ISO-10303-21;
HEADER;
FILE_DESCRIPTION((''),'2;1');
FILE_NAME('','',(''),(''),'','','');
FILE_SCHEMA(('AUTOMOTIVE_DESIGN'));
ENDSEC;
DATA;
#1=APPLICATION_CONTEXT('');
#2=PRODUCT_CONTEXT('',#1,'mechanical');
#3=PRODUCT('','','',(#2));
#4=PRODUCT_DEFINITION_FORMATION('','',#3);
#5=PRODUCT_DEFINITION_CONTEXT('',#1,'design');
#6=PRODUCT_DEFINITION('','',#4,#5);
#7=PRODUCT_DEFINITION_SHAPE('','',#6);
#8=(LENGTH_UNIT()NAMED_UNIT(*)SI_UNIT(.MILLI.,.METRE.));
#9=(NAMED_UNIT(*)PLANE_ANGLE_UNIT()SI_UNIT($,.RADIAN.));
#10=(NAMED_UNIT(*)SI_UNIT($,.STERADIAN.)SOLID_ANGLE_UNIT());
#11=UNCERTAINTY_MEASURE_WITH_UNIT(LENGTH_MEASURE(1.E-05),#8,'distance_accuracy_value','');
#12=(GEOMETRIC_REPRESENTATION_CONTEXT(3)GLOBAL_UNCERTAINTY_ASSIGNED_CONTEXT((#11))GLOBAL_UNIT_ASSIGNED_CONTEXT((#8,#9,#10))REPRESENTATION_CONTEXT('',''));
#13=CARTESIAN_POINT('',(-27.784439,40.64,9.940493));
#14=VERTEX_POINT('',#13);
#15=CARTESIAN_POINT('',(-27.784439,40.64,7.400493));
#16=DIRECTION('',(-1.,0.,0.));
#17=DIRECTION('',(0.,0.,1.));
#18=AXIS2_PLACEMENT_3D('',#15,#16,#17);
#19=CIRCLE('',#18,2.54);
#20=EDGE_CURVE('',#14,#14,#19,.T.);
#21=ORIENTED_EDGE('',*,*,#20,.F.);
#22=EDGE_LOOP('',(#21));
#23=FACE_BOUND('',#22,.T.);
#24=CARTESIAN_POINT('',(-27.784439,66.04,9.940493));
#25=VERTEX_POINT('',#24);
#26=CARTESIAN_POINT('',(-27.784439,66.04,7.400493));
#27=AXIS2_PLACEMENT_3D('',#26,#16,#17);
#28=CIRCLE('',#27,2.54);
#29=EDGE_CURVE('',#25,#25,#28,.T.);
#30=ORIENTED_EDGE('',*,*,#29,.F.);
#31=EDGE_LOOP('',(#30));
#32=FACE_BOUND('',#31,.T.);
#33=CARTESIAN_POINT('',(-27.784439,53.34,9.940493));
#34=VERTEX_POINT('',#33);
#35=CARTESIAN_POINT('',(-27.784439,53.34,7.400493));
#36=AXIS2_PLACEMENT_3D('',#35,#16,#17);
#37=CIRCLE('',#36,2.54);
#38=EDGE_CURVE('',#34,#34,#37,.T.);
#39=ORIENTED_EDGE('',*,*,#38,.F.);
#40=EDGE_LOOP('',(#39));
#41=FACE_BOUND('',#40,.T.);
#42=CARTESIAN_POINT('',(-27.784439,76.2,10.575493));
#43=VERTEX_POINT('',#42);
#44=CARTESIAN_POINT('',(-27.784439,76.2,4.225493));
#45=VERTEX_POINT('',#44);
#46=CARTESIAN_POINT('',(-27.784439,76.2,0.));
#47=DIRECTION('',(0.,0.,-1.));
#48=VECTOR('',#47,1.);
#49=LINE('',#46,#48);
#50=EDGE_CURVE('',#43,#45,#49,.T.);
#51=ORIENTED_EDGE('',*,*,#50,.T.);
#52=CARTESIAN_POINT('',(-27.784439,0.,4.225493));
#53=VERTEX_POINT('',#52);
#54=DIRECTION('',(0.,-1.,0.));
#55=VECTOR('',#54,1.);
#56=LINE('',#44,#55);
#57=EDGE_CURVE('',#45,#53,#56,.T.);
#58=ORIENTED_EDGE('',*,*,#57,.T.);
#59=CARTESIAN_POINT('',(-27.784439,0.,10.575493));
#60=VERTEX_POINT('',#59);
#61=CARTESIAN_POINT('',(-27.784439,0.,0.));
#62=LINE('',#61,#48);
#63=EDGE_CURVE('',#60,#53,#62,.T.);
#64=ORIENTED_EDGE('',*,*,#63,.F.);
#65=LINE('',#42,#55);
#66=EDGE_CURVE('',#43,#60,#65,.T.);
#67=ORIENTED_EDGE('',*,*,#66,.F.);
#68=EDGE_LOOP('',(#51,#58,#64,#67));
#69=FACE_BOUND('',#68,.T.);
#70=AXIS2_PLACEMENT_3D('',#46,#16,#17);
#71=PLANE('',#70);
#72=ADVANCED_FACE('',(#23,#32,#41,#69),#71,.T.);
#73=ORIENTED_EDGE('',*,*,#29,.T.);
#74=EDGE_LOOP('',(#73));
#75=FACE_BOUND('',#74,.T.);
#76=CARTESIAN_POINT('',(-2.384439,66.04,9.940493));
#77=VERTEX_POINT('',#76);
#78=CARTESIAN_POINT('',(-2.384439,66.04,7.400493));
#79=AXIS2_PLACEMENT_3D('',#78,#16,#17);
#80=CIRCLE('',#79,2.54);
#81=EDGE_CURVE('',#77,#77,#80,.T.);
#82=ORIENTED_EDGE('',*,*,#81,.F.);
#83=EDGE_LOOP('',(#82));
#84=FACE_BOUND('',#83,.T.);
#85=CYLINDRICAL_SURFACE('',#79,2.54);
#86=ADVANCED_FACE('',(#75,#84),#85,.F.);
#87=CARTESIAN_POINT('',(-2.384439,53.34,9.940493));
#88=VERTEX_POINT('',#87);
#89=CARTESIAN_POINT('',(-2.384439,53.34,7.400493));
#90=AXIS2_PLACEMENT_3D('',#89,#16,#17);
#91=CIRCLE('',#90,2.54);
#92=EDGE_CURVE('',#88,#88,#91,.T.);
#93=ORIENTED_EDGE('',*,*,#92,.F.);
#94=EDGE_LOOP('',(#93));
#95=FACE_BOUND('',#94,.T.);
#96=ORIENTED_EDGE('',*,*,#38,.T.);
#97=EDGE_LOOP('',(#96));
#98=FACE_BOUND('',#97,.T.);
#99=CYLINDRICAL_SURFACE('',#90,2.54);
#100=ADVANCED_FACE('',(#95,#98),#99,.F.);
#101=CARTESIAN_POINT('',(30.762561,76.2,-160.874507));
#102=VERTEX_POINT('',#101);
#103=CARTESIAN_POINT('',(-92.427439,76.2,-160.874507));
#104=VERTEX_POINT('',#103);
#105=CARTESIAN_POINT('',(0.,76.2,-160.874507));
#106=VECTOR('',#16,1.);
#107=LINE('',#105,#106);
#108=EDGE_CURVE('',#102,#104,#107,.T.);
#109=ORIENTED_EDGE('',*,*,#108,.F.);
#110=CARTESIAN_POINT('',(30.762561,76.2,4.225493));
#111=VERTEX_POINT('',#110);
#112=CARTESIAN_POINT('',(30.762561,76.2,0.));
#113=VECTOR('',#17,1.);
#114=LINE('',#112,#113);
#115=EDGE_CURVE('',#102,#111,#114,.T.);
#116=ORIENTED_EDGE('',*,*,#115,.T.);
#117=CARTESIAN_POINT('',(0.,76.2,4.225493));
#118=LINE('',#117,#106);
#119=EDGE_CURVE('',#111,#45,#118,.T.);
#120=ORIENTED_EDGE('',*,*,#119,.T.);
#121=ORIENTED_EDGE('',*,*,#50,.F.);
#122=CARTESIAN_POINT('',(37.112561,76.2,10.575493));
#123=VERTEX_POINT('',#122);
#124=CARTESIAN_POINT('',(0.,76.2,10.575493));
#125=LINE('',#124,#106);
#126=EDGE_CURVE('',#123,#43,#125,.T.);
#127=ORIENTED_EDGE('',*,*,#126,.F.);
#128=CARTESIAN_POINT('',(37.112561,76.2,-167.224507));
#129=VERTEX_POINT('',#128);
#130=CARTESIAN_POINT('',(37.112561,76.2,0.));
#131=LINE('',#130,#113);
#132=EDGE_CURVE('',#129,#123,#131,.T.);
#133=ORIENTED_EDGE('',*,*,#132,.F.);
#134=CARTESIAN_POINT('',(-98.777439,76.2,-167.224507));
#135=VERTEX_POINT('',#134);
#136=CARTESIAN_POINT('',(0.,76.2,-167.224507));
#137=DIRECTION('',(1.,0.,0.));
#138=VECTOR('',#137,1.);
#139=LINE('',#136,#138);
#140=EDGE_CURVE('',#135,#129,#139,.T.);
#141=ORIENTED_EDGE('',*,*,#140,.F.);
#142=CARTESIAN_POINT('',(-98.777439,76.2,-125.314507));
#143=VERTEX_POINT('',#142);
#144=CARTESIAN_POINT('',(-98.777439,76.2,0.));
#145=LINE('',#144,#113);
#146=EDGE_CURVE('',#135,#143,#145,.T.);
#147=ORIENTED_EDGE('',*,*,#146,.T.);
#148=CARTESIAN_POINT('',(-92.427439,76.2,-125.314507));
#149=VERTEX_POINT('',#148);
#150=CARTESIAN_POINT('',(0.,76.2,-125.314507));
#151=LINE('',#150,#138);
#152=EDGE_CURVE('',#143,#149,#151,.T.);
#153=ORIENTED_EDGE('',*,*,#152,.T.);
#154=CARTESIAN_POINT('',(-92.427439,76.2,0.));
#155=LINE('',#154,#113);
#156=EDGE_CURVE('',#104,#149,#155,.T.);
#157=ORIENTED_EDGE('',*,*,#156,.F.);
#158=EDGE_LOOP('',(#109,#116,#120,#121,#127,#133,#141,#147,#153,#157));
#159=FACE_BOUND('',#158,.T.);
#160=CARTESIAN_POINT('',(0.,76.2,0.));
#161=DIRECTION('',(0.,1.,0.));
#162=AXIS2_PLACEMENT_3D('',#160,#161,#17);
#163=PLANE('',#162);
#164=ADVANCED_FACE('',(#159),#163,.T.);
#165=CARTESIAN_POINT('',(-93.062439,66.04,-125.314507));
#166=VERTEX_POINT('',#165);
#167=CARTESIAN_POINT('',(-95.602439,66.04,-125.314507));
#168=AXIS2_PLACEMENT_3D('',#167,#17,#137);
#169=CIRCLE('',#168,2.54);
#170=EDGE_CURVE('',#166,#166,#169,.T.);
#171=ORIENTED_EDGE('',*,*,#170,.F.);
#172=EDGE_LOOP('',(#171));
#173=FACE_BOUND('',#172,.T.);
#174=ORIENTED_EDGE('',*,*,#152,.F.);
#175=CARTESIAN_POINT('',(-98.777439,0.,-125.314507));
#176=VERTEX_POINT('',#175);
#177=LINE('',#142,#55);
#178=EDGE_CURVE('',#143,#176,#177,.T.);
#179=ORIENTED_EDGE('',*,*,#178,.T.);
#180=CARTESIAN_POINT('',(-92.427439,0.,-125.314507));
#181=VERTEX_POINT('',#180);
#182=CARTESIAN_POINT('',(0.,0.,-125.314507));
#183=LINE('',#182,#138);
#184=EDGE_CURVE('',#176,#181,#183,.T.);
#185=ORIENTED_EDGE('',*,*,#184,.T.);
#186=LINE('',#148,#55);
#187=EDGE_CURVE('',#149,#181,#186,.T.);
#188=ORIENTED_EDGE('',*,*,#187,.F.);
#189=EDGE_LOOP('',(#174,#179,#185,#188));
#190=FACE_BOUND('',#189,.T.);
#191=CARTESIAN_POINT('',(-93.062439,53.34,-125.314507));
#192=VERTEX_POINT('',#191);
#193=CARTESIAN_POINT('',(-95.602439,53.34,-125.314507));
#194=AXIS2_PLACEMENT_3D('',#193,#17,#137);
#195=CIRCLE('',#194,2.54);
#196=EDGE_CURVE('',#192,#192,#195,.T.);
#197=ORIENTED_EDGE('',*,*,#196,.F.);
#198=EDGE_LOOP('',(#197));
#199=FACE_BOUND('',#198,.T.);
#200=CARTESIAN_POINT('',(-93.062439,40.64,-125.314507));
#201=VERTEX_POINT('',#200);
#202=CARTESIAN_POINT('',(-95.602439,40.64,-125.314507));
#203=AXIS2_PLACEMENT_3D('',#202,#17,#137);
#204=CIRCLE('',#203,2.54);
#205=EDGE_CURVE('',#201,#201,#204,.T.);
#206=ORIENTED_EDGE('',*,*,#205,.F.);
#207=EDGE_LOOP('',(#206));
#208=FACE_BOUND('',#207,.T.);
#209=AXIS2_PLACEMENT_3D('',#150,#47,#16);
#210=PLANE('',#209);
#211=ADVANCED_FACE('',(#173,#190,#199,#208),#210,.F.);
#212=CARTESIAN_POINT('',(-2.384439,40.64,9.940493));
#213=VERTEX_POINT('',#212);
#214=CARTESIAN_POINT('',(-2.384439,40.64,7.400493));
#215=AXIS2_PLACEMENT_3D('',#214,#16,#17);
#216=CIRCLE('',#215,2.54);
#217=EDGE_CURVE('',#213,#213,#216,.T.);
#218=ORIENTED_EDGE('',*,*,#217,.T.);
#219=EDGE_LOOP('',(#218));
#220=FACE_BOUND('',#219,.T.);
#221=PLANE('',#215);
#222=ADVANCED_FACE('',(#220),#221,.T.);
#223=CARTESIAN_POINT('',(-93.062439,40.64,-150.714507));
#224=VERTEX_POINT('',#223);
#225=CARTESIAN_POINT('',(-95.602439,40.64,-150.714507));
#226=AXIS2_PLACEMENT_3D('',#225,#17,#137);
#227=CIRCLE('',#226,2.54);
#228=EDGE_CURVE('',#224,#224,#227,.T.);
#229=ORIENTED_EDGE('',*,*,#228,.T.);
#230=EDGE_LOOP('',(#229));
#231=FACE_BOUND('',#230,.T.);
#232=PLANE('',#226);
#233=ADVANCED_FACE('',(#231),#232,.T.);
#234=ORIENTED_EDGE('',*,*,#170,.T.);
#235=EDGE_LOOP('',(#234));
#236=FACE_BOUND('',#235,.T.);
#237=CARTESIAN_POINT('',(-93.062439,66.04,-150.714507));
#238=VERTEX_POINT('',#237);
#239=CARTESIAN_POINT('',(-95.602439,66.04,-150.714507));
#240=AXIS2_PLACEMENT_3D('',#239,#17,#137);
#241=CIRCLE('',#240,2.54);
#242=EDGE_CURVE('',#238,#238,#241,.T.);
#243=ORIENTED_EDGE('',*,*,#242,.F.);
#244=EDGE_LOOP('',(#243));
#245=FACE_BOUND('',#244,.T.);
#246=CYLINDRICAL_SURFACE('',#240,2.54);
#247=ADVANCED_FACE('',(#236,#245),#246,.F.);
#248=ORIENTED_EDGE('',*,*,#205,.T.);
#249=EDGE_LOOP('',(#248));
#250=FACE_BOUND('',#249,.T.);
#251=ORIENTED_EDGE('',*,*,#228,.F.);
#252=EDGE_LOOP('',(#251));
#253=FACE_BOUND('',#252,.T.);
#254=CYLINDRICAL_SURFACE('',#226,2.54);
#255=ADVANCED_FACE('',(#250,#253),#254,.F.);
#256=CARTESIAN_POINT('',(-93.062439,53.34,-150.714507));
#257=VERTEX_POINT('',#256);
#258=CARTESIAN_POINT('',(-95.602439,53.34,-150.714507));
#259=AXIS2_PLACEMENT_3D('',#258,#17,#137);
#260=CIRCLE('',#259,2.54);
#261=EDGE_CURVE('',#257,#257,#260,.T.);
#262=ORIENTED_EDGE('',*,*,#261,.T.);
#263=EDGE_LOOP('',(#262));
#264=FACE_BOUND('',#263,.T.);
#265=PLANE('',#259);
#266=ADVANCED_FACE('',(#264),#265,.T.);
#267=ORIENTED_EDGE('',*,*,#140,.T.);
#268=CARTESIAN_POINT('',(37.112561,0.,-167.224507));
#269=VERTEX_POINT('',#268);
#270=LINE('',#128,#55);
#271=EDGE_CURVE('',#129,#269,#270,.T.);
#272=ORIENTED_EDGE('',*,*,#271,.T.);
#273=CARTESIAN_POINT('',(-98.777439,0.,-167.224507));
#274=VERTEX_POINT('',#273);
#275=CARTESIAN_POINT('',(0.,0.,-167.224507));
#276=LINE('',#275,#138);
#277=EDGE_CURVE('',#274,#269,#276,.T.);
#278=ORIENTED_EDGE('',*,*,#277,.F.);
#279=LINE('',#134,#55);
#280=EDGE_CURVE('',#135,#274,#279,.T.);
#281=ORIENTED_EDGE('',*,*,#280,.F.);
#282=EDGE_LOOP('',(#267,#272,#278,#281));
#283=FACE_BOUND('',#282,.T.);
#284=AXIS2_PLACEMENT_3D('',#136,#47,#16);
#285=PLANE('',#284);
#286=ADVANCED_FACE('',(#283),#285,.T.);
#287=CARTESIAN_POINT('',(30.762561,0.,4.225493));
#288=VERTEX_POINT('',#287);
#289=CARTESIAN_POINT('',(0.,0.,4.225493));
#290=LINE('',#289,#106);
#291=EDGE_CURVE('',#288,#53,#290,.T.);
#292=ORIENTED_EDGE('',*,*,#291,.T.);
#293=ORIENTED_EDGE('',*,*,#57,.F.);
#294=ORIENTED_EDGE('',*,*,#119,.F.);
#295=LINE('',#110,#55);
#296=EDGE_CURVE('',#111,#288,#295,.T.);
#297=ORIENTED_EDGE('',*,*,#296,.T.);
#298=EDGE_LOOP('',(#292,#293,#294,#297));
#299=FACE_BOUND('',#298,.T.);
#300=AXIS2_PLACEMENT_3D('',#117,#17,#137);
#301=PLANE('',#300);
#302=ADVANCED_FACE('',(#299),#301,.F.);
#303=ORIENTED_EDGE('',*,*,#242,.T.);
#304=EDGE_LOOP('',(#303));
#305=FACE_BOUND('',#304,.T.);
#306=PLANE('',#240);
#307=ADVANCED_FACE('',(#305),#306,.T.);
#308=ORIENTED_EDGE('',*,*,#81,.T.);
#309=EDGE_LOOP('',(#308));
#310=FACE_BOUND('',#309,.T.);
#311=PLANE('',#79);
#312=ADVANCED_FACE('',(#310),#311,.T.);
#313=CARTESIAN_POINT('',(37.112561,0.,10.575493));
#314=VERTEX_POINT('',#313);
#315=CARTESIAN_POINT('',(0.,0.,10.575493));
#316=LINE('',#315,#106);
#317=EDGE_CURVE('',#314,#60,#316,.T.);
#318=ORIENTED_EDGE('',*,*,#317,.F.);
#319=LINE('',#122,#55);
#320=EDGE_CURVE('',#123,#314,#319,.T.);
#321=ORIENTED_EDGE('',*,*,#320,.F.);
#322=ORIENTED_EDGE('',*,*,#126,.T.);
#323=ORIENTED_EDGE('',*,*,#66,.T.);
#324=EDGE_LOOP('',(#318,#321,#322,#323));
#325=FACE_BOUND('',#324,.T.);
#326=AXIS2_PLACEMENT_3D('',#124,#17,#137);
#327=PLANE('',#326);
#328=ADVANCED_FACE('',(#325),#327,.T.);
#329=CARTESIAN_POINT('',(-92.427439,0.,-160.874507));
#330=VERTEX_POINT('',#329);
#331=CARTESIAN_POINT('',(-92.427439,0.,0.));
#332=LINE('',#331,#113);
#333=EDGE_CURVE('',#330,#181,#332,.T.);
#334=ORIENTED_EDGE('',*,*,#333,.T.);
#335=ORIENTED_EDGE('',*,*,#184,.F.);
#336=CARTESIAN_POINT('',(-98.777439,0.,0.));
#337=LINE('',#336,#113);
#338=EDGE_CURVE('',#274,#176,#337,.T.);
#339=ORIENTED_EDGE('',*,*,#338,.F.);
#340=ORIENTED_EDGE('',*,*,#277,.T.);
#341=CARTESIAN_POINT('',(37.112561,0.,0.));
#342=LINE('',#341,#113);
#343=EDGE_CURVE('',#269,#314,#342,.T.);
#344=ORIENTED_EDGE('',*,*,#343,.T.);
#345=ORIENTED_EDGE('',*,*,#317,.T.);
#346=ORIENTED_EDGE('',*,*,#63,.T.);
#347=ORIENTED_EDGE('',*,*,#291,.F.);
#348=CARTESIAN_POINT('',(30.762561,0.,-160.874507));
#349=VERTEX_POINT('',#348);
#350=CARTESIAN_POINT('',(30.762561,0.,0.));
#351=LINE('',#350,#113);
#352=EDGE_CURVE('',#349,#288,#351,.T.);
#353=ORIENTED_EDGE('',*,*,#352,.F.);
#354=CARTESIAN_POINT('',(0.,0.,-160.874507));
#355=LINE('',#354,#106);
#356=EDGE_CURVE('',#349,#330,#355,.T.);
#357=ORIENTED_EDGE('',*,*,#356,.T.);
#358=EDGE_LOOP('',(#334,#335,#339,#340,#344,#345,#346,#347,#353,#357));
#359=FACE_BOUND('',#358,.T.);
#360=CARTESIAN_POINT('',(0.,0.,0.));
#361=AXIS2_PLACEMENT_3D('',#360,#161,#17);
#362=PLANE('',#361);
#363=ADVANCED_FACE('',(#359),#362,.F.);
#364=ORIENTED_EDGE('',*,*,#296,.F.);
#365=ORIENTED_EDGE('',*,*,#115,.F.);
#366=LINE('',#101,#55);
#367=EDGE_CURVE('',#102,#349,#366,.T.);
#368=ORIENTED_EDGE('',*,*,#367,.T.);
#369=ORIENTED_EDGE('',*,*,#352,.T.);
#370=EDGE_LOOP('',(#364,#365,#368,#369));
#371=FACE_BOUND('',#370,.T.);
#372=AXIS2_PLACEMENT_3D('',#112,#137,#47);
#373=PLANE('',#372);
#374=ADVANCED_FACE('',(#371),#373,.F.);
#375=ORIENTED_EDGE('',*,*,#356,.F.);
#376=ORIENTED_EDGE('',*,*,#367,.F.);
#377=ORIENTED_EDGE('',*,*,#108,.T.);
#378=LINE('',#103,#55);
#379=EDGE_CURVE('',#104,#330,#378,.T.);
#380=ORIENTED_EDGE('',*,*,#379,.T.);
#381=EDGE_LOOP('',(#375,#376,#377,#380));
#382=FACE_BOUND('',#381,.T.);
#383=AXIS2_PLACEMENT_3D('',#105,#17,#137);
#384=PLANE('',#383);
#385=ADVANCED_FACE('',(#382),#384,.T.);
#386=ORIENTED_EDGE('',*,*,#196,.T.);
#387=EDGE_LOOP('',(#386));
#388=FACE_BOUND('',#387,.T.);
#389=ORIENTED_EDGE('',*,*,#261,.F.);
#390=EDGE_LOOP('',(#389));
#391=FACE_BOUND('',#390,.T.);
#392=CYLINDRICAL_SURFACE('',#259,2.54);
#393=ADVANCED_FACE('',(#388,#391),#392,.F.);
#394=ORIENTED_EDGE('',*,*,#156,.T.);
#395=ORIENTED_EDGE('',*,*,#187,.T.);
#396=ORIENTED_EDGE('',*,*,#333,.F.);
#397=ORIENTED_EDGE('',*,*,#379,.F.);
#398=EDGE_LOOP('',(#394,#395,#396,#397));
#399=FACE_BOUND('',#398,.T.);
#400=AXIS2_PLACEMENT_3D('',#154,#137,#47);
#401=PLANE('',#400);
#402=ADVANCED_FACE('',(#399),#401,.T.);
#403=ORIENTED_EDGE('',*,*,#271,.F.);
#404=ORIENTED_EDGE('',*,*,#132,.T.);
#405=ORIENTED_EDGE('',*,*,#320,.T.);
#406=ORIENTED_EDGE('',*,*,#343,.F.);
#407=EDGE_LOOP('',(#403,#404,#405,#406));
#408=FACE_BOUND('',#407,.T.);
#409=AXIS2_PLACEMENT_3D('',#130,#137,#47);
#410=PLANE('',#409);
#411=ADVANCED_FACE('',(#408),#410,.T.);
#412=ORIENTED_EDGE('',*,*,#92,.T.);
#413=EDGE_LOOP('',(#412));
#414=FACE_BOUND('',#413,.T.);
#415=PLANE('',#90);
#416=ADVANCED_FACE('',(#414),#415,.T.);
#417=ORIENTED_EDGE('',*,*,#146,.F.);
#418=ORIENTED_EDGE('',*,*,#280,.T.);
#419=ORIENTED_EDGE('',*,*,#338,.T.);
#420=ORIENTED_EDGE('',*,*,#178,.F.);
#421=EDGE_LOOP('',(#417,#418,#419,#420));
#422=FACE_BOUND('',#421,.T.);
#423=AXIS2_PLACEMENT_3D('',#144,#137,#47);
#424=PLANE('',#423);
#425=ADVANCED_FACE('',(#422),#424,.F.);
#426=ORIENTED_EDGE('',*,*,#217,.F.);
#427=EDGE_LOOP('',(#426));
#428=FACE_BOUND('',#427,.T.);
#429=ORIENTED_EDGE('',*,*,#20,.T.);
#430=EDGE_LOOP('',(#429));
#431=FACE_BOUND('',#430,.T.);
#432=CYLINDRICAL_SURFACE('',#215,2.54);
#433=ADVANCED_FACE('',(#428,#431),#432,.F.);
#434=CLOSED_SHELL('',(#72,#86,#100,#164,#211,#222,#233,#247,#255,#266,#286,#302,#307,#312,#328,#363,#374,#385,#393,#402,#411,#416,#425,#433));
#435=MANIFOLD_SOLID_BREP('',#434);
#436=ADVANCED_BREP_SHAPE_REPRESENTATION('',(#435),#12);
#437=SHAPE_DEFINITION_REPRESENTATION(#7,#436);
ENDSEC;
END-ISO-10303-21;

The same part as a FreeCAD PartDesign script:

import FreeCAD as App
import Part
import Sketcher
Q = App.Units.Quantity


def add_polygon(sketch, points):
    """Adds a closed chain of lines whose ends are joined by coincident constraints."""
    first, n = sketch.GeometryCount, len(points)
    for a, b in zip(points, points[1:] + points[:1]):
        sketch.addGeometry(Part.LineSegment(App.Vector(*a, 0), App.Vector(*b, 0)), False)
    for i in range(n):
        sketch.addConstraint(Sketcher.Constraint("Coincident", first + i, 2, first + (i + 1) % n, 1))

doc = App.newDocument("Part")
params = doc.addObject("Spreadsheet::Sheet", "Params")
for row, (alias, value) in enumerate([
    ("sketch1_height", "7 in"),
    ("sketch1_height2", "1.4 in"),
    ("sketch1_height3", "6.5 in"),
    ("sketch1_width", "5.35 in"),
    ("sketch1_width2", "0.25 in"),
    ("pad1_length", "3 in"),
    ("sketch2_diameter", "0.2 in"),
    ("pocket1_length", "1 in"),
    ("sketch3_diameter", "0.2 in"),
    ("pocket2_length", "1 in"),
], start=1):
    params.set(f"A{row}", alias)
    params.set(f"B{row}", "=" + value)
    params.setAlias(f"B{row}", alias)

body = doc.addObject("PartDesign::Body", "Body")

# Sketch on XZ plane
sketch1 = doc.addObject("Sketcher::SketchObject", "Sketch")
body.addObject(sketch1)
sketch1.AttachmentSupport = (doc.XZ_Plane, [""])
sketch1.MapMode = "FlatFace"
add_polygon(sketch1, [(37, -167), (-99, -167), (-99, -125), (-92, -125), (-92, -161), (31, -161), (31, 4), (-28, 4), (-28, 11), (37, 11)])  # lines 0-9
sketch1.addConstraint([
    Sketcher.Constraint("Horizontal", 0),
    Sketcher.Constraint("Vertical", 1),
    Sketcher.Constraint("Horizontal", 2),
    Sketcher.Constraint("Vertical", 3),
    Sketcher.Constraint("Horizontal", 4),
    Sketcher.Constraint("Vertical", 5),
    Sketcher.Constraint("Horizontal", 6),
    Sketcher.Constraint("Vertical", 7),
    Sketcher.Constraint("Horizontal", 8),
    Sketcher.Constraint("Vertical", 9),
    Sketcher.Constraint("Equal", 2, 7),
    Sketcher.Constraint("DistanceY", 9, 2, 9, 1, Q("7 in")),
    Sketcher.Constraint("DistanceY", 3, 2, 3, 1, Q("1.4 in")),
    Sketcher.Constraint("DistanceY", 5, 1, 5, 2, Q("6.5 in")),
    Sketcher.Constraint("DistanceX", 0, 2, 0, 1, Q("5.35 in")),
    Sketcher.Constraint("DistanceX", 2, 1, 2, 2, Q("0.25 in")),
    Sketcher.Constraint("DistanceX", 4, 1, 4, 2, Q("4.85 in")),
    Sketcher.Constraint("DistanceX", 6, 2, 6, 1, Q("2.305 in")),
    Sketcher.Constraint("DistanceX", 0, 2, -1, 1, 98.777439),
    Sketcher.Constraint("DistanceY", 0, 2, -1, 1, 167.224507),
])
sketch1.setExpression("Constraints[21]", "Params.sketch1_height")
sketch1.setExpression("Constraints[22]", "Params.sketch1_height2")
sketch1.setExpression("Constraints[23]", "Params.sketch1_height3")
sketch1.setExpression("Constraints[24]", "Params.sketch1_width")
sketch1.setExpression("Constraints[25]", "Params.sketch1_width2")
pad1 = doc.addObject("PartDesign::Pad", "Pad")
body.addObject(pad1)
pad1.Profile = sketch1
pad1.setExpression("Length", "Params.pad1_length")
pad1.Reversed = True

# Sketch on YZ plane
sketch2 = doc.addObject("Sketcher::SketchObject", "Sketch001")
body.addObject(sketch2)
sketch2.AttachmentSupport = (doc.YZ_Plane, [""])
sketch2.MapMode = "FlatFace"
sketch2.AttachmentOffset = App.Placement(App.Vector(0, 0, -27.784439), App.Rotation())
sketch2.addGeometry([
    Part.Circle(App.Vector(66, 7.4, 0), App.Vector(0, 0, 1), 2.5),
    Part.Circle(App.Vector(53.3, 7.4, 0), App.Vector(0, 0, 1), 2.5),
    Part.Circle(App.Vector(40.6, 7.4, 0), App.Vector(0, 0, 1), 2.5),
], False)
sketch2.addConstraint([
    Sketcher.Constraint("Equal", 0, 1),
    Sketcher.Constraint("Equal", 1, 2),
    Sketcher.Constraint("Horizontal", 0, 3, 1, 3),
    Sketcher.Constraint("Horizontal", 1, 3, 2, 3),
    Sketcher.Constraint("Diameter", 0, Q("0.2 in")),
    Sketcher.Constraint("DistanceX", 2, 3, 0, 3, Q("1 in")),
    Sketcher.Constraint("DistanceX", -1, 1, 0, 3, Q("2.6 in")),
    Sketcher.Constraint("DistanceX", -1, 1, 1, 3, Q("2.1 in")),
    Sketcher.Constraint("DistanceY", -1, 1, 0, 3, 7.400493),
])
sketch2.setExpression("Constraints[4]", "Params.sketch2_diameter")
pocket1 = doc.addObject("PartDesign::Pocket", "Pocket")
body.addObject(pocket1)
pocket1.Profile = sketch2
pocket1.setExpression("Length", "Params.pocket1_length")
pocket1.Reversed = True

# Sketch on XY plane
sketch3 = doc.addObject("Sketcher::SketchObject", "Sketch002")
body.addObject(sketch3)
sketch3.AttachmentSupport = (doc.XY_Plane, [""])
sketch3.MapMode = "FlatFace"
sketch3.AttachmentOffset = App.Placement(App.Vector(0, 0, -125.314507), App.Rotation())
sketch3.addGeometry([
    Part.Circle(App.Vector(-95.6, 66, 0), App.Vector(0, 0, 1), 2.5),
    Part.Circle(App.Vector(-95.6, 53.3, 0), App.Vector(0, 0, 1), 2.5),
    Part.Circle(App.Vector(-95.6, 40.6, 0), App.Vector(0, 0, 1), 2.5),
], False)
sketch3.addConstraint([
    Sketcher.Constraint("Equal", 0, 1),
    Sketcher.Constraint("Equal", 1, 2),
    Sketcher.Constraint("Vertical", 0, 3, 1, 3),
    Sketcher.Constraint("Vertical", 1, 3, 2, 3),
    Sketcher.Constraint("Diameter", 0, Q("0.2 in")),
    Sketcher.Constraint("DistanceY", 2, 3, 0, 3, Q("1 in")),
    Sketcher.Constraint("DistanceY", -1, 1, 0, 3, Q("2.6 in")),
    Sketcher.Constraint("DistanceY", -1, 1, 1, 3, Q("2.1 in")),
    Sketcher.Constraint("DistanceX", 0, 3, -1, 1, 95.602439),
])
sketch3.setExpression("Constraints[4]", "Params.sketch3_diameter")
pocket2 = doc.addObject("PartDesign::Pocket", "Pocket001")
body.addObject(pocket2)
pocket2.Profile = sketch3
pocket2.setExpression("Length", "Params.pocket2_length")

doc.recompute()
